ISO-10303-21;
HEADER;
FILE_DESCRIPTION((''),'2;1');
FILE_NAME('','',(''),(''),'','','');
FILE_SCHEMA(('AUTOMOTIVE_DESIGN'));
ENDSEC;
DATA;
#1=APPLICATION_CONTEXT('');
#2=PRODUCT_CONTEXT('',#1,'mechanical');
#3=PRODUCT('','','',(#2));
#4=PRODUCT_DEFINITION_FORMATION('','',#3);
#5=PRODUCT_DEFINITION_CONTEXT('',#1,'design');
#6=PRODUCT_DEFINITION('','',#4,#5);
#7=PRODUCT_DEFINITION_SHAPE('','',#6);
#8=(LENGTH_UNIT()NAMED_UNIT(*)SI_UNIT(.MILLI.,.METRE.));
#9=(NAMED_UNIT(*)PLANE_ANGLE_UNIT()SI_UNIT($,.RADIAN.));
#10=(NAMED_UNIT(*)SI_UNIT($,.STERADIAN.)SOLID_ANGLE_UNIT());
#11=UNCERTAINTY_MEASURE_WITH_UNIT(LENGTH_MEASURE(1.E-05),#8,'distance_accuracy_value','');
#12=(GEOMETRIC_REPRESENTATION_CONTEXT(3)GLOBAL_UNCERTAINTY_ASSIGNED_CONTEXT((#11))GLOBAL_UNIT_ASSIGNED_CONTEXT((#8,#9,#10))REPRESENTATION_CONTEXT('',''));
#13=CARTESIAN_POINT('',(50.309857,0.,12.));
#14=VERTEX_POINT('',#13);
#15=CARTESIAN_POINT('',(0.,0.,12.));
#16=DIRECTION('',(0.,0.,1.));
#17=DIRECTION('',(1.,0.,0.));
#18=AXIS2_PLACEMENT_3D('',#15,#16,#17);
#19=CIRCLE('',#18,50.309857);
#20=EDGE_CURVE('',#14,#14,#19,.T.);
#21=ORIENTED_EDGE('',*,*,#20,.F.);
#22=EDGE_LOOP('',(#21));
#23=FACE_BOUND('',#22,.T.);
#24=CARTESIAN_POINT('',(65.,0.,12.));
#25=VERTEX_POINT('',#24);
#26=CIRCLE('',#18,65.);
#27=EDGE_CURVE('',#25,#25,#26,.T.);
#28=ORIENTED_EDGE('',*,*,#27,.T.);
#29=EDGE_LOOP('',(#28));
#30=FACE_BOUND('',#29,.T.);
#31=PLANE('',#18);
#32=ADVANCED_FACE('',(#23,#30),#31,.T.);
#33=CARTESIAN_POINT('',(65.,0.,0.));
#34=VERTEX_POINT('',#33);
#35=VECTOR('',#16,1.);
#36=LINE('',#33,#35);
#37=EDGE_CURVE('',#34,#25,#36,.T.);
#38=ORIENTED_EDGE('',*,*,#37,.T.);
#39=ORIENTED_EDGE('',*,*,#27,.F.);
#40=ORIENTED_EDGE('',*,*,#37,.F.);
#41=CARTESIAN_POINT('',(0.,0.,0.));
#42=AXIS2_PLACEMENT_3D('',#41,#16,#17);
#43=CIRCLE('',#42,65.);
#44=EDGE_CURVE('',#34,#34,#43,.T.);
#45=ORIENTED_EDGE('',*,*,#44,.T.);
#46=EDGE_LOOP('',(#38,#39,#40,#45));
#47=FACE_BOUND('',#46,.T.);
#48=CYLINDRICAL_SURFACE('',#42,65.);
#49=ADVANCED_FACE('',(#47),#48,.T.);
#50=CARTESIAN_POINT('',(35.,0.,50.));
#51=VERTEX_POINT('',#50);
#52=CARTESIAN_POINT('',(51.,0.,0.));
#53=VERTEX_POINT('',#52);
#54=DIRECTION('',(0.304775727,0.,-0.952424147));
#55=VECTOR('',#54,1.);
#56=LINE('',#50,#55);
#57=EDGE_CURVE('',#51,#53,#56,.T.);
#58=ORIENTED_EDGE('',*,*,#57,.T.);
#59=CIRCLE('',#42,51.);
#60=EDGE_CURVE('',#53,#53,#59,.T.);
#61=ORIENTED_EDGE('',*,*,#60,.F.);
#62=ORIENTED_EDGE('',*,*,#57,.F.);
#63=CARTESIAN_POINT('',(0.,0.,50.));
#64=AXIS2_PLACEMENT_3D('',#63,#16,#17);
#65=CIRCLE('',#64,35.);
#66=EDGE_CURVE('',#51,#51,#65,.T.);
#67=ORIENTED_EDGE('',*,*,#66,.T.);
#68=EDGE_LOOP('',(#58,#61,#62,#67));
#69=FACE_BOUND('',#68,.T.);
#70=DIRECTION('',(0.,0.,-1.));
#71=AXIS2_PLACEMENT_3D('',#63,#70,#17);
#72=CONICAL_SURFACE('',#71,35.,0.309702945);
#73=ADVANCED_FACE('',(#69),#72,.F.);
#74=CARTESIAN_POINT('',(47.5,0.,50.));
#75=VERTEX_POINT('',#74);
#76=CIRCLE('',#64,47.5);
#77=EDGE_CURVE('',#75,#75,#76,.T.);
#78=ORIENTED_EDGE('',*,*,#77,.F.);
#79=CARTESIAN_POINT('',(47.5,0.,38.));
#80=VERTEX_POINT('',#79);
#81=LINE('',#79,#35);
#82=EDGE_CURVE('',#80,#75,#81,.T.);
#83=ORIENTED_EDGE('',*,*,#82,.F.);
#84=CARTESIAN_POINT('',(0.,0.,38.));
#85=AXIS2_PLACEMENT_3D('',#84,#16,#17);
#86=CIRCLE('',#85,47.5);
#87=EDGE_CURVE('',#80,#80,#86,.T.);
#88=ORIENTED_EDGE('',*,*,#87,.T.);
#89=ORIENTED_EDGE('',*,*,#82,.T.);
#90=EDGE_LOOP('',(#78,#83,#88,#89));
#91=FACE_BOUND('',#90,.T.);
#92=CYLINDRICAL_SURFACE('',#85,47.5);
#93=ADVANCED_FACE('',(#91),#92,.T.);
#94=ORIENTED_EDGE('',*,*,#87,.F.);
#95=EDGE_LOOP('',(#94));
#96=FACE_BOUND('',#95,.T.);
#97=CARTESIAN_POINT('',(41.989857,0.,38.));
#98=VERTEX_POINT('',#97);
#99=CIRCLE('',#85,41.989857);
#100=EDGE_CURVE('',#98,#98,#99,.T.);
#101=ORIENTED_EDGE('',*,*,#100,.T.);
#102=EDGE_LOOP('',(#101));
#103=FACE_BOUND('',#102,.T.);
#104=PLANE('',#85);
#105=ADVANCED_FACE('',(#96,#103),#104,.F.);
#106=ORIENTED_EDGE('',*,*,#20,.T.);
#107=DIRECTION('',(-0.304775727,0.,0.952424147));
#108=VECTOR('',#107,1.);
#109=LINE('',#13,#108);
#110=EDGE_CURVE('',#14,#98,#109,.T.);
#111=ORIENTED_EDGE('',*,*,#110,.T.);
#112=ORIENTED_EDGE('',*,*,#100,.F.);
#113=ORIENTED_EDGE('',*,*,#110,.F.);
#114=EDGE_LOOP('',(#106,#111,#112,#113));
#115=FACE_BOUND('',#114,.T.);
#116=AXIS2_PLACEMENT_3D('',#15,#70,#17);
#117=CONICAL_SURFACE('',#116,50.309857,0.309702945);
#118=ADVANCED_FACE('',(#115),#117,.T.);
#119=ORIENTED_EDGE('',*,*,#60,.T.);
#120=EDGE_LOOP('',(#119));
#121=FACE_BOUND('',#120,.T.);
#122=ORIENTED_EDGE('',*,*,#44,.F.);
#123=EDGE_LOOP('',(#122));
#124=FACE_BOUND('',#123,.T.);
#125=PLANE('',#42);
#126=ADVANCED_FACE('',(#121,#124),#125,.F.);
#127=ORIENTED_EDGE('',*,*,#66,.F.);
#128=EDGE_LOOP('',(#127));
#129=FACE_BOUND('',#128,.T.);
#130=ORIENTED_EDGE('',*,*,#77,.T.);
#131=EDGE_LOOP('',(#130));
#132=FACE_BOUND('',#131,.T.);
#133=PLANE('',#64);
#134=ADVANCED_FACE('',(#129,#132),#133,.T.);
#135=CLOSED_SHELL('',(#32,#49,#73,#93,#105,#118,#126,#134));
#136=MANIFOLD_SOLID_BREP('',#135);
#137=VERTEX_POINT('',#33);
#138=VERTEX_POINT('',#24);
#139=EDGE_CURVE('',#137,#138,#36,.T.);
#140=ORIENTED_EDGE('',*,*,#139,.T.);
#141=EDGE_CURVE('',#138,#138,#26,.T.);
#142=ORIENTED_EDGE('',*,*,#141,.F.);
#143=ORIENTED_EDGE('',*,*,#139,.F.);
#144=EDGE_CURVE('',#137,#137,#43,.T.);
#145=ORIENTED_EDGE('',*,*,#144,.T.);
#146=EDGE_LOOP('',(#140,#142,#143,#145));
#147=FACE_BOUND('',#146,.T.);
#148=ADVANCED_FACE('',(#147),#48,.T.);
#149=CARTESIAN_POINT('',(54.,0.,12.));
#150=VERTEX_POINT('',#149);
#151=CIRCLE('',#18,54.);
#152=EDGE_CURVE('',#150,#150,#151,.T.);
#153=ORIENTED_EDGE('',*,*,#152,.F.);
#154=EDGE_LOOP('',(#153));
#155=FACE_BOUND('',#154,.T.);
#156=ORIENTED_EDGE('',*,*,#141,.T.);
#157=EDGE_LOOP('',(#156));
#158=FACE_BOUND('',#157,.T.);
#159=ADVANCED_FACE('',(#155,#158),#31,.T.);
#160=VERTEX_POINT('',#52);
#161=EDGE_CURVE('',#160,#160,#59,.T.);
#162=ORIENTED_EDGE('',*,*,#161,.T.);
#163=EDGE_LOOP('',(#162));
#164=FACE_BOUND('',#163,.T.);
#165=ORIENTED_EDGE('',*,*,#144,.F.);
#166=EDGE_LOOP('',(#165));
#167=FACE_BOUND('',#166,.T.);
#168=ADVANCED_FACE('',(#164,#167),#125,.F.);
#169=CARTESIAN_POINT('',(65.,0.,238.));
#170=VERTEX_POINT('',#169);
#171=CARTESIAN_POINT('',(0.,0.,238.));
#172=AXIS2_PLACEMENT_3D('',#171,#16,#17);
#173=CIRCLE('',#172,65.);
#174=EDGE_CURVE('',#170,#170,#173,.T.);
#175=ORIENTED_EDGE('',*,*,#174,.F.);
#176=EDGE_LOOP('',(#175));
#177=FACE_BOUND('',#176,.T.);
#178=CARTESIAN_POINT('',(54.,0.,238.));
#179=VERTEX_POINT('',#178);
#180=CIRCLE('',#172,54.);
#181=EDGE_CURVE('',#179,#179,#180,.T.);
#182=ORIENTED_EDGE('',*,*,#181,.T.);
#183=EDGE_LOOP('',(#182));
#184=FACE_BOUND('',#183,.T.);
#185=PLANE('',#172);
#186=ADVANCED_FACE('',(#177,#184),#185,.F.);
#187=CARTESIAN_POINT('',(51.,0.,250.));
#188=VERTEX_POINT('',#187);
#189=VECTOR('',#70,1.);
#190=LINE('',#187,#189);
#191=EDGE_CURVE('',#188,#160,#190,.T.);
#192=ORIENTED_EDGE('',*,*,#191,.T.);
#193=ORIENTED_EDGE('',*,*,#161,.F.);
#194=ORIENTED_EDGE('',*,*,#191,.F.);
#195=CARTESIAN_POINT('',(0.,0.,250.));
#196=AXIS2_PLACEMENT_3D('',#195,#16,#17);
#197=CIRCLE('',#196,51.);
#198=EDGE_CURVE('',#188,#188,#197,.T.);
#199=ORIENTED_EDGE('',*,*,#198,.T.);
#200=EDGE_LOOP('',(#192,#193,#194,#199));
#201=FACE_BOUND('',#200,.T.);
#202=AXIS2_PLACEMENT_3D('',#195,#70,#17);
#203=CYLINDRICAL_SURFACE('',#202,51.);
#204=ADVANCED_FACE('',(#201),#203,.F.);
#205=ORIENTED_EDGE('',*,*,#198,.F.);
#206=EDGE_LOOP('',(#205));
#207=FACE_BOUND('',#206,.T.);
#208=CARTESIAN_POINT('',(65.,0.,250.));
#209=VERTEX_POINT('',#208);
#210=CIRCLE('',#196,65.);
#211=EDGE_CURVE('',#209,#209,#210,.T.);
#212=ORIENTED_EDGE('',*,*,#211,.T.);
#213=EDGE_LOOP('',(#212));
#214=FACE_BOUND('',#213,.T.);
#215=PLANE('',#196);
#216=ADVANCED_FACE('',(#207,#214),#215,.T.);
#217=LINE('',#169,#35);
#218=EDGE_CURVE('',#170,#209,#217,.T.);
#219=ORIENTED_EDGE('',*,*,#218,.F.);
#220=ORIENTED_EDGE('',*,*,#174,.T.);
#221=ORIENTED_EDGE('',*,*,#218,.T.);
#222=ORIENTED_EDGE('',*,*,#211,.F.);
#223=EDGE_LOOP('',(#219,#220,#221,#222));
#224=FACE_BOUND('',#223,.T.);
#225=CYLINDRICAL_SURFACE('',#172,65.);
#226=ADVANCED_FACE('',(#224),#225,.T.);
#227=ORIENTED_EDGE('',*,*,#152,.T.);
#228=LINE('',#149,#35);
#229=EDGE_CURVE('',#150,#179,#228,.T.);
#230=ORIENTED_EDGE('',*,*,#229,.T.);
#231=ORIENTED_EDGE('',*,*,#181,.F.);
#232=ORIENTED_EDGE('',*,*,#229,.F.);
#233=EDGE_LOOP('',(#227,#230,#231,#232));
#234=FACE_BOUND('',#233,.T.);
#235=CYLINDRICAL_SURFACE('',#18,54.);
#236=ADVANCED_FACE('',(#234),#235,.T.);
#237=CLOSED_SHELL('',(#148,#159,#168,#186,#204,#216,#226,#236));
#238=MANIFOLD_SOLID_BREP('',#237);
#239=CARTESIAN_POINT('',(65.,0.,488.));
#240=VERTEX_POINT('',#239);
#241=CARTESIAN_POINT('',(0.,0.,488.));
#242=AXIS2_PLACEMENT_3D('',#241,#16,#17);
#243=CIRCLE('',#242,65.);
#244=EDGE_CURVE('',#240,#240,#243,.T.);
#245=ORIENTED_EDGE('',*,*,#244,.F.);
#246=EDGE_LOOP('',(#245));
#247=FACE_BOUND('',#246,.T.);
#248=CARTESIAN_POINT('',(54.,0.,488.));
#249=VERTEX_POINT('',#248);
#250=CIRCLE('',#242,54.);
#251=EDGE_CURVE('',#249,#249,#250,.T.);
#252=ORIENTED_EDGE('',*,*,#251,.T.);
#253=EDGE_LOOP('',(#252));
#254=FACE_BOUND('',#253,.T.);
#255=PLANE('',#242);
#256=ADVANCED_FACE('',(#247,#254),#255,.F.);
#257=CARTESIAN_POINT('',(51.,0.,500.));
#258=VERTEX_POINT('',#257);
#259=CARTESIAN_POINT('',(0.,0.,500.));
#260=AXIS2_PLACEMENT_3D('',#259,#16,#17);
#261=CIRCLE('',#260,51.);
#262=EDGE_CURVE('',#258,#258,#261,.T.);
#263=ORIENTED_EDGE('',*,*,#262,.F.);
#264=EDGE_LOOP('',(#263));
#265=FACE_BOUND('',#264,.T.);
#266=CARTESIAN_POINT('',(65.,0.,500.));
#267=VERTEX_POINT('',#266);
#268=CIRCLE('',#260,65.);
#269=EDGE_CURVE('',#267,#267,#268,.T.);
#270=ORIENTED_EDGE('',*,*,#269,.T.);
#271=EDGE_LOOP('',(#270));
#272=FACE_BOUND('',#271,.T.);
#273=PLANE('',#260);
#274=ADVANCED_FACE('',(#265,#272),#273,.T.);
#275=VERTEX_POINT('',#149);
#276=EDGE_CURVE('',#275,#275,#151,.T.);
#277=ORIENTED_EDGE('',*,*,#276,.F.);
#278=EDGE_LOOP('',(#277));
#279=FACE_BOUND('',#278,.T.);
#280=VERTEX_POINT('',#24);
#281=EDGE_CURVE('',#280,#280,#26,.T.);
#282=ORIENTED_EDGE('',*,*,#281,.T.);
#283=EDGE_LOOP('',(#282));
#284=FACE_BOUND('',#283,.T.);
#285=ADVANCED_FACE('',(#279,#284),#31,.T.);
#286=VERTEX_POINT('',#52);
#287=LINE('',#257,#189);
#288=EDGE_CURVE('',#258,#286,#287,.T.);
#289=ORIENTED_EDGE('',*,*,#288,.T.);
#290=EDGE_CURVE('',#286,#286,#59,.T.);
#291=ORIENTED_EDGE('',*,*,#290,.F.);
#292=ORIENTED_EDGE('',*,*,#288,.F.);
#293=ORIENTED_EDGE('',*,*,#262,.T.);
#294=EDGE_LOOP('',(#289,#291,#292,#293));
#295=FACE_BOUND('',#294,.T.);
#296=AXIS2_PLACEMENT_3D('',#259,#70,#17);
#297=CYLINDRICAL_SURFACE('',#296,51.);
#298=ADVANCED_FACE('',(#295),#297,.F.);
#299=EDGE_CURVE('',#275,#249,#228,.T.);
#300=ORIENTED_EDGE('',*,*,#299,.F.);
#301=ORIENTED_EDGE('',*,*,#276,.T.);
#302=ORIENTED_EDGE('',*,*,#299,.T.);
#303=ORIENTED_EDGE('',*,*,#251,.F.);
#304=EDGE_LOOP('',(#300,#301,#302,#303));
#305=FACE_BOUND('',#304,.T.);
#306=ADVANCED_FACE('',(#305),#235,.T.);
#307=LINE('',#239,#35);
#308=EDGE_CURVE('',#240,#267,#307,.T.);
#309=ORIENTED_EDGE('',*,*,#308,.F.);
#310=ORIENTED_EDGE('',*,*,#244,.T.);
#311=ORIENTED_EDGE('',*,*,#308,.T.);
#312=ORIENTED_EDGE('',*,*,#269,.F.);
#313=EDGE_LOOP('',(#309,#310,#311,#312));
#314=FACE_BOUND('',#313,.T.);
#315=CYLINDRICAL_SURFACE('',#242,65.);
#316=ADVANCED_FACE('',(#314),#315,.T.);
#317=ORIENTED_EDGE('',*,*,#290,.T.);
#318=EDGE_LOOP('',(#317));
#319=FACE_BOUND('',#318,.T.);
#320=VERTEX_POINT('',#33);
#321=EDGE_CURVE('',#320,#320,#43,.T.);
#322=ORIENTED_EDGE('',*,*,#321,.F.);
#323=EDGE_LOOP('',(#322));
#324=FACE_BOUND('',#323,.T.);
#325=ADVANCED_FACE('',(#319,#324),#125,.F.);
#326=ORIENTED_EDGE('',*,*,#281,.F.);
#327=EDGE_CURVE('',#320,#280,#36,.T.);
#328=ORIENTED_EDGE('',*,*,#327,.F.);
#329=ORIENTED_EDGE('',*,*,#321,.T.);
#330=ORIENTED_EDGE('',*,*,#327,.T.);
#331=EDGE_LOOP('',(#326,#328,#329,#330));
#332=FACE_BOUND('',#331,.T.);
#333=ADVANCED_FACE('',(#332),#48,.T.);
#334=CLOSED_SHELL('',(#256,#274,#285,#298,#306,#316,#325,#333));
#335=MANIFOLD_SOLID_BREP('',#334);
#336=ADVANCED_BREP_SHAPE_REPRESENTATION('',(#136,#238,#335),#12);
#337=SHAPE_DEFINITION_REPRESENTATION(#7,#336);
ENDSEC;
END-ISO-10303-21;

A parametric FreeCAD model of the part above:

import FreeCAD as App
import Part
import Sketcher

V = App.Vector
Q = App.Units.Quantity

doc = App.newDocument("Part")
body = doc.addObject("PartDesign::Body", "Body")

# Sketch on XZ plane
sketch1 = body.newObject("Sketcher::SketchObject", "Sketch")
sketch1.AttachmentSupport = (doc.getObject("XZ_Plane"), [""])
sketch1.MapMode = "FlatFace"
sketch1.addGeometry([
    Part.LineSegment(V(51, 500, 0), V(51, 0, 0)),  # 0
    Part.LineSegment(V(51, 0, 0), V(65, 0, 0)),  # 1
    Part.LineSegment(V(65, 0, 0), V(65, 12, 0)),  # 2
    Part.LineSegment(V(65, 12, 0), V(54, 12, 0)),  # 3
    Part.LineSegment(V(54, 12, 0), V(54, 488, 0)),  # 4
    Part.LineSegment(V(54, 488, 0), V(65, 488, 0)),  # 5
    Part.LineSegment(V(65, 488, 0), V(65, 500, 0)),  # 6
    Part.LineSegment(V(65, 500, 0), V(51, 500, 0)),  # 7
], False)
sketch1.addConstraint([
    Sketcher.Constraint("Coincident", 0, 2, 1, 1),
    Sketcher.Constraint("Coincident", 1, 2, 2, 1),
    Sketcher.Constraint("Coincident", 2, 2, 3, 1),
    Sketcher.Constraint("Coincident", 3, 2, 4, 1),
    Sketcher.Constraint("Coincident", 4, 2, 5, 1),
    Sketcher.Constraint("Coincident", 5, 2, 6, 1),
    Sketcher.Constraint("Coincident", 6, 2, 7, 1),
    Sketcher.Constraint("Coincident", 7, 2, 0, 1),
    Sketcher.Constraint("Vertical", 0),
    Sketcher.Constraint("Horizontal", 1),
    Sketcher.Constraint("Vertical", 2),
    Sketcher.Constraint("Horizontal", 3),
    Sketcher.Constraint("Vertical", 4),
    Sketcher.Constraint("Horizontal", 5),
    Sketcher.Constraint("Vertical", 6),
    Sketcher.Constraint("Horizontal", 7),
    Sketcher.Constraint("PointOnObject", 0, 2, -1),
    Sketcher.Constraint("Vertical", 2, 2, 5, 2),
    Sketcher.Constraint("Equal", 2, 6),
    Sketcher.Constraint("DistanceX", 1, 1, 1, 2, Q("14 mm")),
    Sketcher.Constraint("DistanceX", 3, 2, 3, 1, Q("11 mm")),
    Sketcher.Constraint("DistanceY", 0, 2, 0, 1, Q("500 mm")),
    Sketcher.Constraint("DistanceY", 2, 1, 2, 2, Q("12 mm")),
    Sketcher.Constraint("DistanceX", -1, 1, 0, 2, Q("51 mm")),
])
revolution = body.newObject("PartDesign::Revolution", "Revolution")
revolution.Profile = sketch1
revolution.ReferenceAxis = (sketch1, ["V_Axis"])
revolution.Angle = 360
body2 = doc.addObject("PartDesign::Body", "Body001")

# Sketch on XZ plane
sketch2 = body2.newObject("Sketcher::SketchObject", "Sketch001")
sketch2.AttachmentSupport = (doc.getObject("XZ_Plane001"), [""])
sketch2.MapMode = "FlatFace"
sketch2.addGeometry([
    Part.LineSegment(V(35, 50, 0), V(51, 0, 0)),  # 0
    Part.LineSegment(V(51, 0, 0), V(65, 0, 0)),  # 1
    Part.LineSegment(V(65, 0, 0), V(65, 12, 0)),  # 2
    Part.LineSegment(V(65, 12, 0), V(50, 12, 0)),  # 3
    Part.LineSegment(V(50, 12, 0), V(42, 38, 0)),  # 4
    Part.LineSegment(V(42, 38, 0), V(48, 38, 0)),  # 5
    Part.LineSegment(V(48, 38, 0), V(48, 50, 0)),  # 6
    Part.LineSegment(V(48, 50, 0), V(35, 50, 0)),  # 7
], False)
sketch2.addConstraint([
    Sketcher.Constraint("Coincident", 0, 2, 1, 1),
    Sketcher.Constraint("Coincident", 1, 2, 2, 1),
    Sketcher.Constraint("Coincident", 2, 2, 3, 1),
    Sketcher.Constraint("Coincident", 3, 2, 4, 1),
    Sketcher.Constraint("Coincident", 4, 2, 5, 1),
    Sketcher.Constraint("Coincident", 5, 2, 6, 1),
    Sketcher.Constraint("Coincident", 6, 2, 7, 1),
    Sketcher.Constraint("Coincident", 7, 2, 0, 1),
    Sketcher.Constraint("Horizontal", 1),
    Sketcher.Constraint("Vertical", 2),
    Sketcher.Constraint("Horizontal", 3),
    Sketcher.Constraint("Horizontal", 5),
    Sketcher.Constraint("Vertical", 6),
    Sketcher.Constraint("Horizontal", 7),
    Sketcher.Constraint("PointOnObject", 0, 2, -1),
    Sketcher.Constraint("Parallel", 0, 4),
    Sketcher.Constraint("Equal", 2, 6),
    Sketcher.Constraint("DistanceX", 1, 1, 1, 2, Q("14 mm")),
    Sketcher.Constraint("DistanceY", 2, 1, 2, 2, Q("12 mm")),
    Sketcher.Constraint("DistanceX", 7, 2, 7, 1, Q("12.5 mm")),
    Sketcher.Constraint("DistanceX", -1, 1, 0, 2, Q("51 mm")),
    Sketcher.Constraint("DistanceY", -1, 1, 4, 2, Q("38 mm")),
    Sketcher.Constraint("DistanceX", -1, 1, 7, 2, Q("35 mm")),
    Sketcher.Constraint("DistanceX", 3, 2, 3, 1, Q("14.690143 mm")),
])
revolution2 = body2.newObject("PartDesign::Revolution", "Revolution001")
revolution2.Profile = sketch2
revolution2.ReferenceAxis = (sketch2, ["V_Axis"])
revolution2.Angle = 360
body3 = doc.addObject("PartDesign::Body", "Body002")

# Sketch on XZ plane
sketch3 = body3.newObject("Sketcher::SketchObject", "Sketch002")
sketch3.AttachmentSupport = (doc.getObject("XZ_Plane002"), [""])
sketch3.MapMode = "FlatFace"
sketch3.addGeometry([
    Part.LineSegment(V(51, 250, 0), V(51, 0, 0)),  # 0
    Part.LineSegment(V(51, 0, 0), V(65, 0, 0)),  # 1
    Part.LineSegment(V(65, 0, 0), V(65, 12, 0)),  # 2
    Part.LineSegment(V(65, 12, 0), V(54, 12, 0)),  # 3
    Part.LineSegment(V(54, 12, 0), V(54, 238, 0)),  # 4
    Part.LineSegment(V(54, 238, 0), V(65, 238, 0)),  # 5
    Part.LineSegment(V(65, 238, 0), V(65, 250, 0)),  # 6
    Part.LineSegment(V(65, 250, 0), V(51, 250, 0)),  # 7
], False)
sketch3.addConstraint([
    Sketcher.Constraint("Coincident", 0, 2, 1, 1),
    Sketcher.Constraint("Coincident", 1, 2, 2, 1),
    Sketcher.Constraint("Coincident", 2, 2, 3, 1),
    Sketcher.Constraint("Coincident", 3, 2, 4, 1),
    Sketcher.Constraint("Coincident", 4, 2, 5, 1),
    Sketcher.Constraint("Coincident", 5, 2, 6, 1),
    Sketcher.Constraint("Coincident", 6, 2, 7, 1),
    Sketcher.Constraint("Coincident", 7, 2, 0, 1),
    Sketcher.Constraint("Vertical", 0),
    Sketcher.Constraint("Horizontal", 1),
    Sketcher.Constraint("Vertical", 2),
    Sketcher.Constraint("Horizontal", 3),
    Sketcher.Constraint("Vertical", 4),
    Sketcher.Constraint("Horizontal", 5),
    Sketcher.Constraint("Vertical", 6),
    Sketcher.Constraint("Horizontal", 7),
    Sketcher.Constraint("PointOnObject", 0, 2, -1),
    Sketcher.Constraint("Vertical", 2, 2, 5, 2),
    Sketcher.Constraint("Equal", 2, 6),
    Sketcher.Constraint("DistanceX", 1, 1, 1, 2, Q("14 mm")),
    Sketcher.Constraint("DistanceX", 3, 2, 3, 1, Q("11 mm")),
    Sketcher.Constraint("DistanceY", 0, 2, 0, 1, Q("250 mm")),
    Sketcher.Constraint("DistanceY", 2, 1, 2, 2, Q("12 mm")),
    Sketcher.Constraint("DistanceX", -1, 1, 0, 2, Q("51 mm")),
])
revolution3 = body3.newObject("PartDesign::Revolution", "Revolution002")
revolution3.Profile = sketch3
revolution3.ReferenceAxis = (sketch3, ["V_Axis"])
revolution3.Angle = 360

doc.recompute()
